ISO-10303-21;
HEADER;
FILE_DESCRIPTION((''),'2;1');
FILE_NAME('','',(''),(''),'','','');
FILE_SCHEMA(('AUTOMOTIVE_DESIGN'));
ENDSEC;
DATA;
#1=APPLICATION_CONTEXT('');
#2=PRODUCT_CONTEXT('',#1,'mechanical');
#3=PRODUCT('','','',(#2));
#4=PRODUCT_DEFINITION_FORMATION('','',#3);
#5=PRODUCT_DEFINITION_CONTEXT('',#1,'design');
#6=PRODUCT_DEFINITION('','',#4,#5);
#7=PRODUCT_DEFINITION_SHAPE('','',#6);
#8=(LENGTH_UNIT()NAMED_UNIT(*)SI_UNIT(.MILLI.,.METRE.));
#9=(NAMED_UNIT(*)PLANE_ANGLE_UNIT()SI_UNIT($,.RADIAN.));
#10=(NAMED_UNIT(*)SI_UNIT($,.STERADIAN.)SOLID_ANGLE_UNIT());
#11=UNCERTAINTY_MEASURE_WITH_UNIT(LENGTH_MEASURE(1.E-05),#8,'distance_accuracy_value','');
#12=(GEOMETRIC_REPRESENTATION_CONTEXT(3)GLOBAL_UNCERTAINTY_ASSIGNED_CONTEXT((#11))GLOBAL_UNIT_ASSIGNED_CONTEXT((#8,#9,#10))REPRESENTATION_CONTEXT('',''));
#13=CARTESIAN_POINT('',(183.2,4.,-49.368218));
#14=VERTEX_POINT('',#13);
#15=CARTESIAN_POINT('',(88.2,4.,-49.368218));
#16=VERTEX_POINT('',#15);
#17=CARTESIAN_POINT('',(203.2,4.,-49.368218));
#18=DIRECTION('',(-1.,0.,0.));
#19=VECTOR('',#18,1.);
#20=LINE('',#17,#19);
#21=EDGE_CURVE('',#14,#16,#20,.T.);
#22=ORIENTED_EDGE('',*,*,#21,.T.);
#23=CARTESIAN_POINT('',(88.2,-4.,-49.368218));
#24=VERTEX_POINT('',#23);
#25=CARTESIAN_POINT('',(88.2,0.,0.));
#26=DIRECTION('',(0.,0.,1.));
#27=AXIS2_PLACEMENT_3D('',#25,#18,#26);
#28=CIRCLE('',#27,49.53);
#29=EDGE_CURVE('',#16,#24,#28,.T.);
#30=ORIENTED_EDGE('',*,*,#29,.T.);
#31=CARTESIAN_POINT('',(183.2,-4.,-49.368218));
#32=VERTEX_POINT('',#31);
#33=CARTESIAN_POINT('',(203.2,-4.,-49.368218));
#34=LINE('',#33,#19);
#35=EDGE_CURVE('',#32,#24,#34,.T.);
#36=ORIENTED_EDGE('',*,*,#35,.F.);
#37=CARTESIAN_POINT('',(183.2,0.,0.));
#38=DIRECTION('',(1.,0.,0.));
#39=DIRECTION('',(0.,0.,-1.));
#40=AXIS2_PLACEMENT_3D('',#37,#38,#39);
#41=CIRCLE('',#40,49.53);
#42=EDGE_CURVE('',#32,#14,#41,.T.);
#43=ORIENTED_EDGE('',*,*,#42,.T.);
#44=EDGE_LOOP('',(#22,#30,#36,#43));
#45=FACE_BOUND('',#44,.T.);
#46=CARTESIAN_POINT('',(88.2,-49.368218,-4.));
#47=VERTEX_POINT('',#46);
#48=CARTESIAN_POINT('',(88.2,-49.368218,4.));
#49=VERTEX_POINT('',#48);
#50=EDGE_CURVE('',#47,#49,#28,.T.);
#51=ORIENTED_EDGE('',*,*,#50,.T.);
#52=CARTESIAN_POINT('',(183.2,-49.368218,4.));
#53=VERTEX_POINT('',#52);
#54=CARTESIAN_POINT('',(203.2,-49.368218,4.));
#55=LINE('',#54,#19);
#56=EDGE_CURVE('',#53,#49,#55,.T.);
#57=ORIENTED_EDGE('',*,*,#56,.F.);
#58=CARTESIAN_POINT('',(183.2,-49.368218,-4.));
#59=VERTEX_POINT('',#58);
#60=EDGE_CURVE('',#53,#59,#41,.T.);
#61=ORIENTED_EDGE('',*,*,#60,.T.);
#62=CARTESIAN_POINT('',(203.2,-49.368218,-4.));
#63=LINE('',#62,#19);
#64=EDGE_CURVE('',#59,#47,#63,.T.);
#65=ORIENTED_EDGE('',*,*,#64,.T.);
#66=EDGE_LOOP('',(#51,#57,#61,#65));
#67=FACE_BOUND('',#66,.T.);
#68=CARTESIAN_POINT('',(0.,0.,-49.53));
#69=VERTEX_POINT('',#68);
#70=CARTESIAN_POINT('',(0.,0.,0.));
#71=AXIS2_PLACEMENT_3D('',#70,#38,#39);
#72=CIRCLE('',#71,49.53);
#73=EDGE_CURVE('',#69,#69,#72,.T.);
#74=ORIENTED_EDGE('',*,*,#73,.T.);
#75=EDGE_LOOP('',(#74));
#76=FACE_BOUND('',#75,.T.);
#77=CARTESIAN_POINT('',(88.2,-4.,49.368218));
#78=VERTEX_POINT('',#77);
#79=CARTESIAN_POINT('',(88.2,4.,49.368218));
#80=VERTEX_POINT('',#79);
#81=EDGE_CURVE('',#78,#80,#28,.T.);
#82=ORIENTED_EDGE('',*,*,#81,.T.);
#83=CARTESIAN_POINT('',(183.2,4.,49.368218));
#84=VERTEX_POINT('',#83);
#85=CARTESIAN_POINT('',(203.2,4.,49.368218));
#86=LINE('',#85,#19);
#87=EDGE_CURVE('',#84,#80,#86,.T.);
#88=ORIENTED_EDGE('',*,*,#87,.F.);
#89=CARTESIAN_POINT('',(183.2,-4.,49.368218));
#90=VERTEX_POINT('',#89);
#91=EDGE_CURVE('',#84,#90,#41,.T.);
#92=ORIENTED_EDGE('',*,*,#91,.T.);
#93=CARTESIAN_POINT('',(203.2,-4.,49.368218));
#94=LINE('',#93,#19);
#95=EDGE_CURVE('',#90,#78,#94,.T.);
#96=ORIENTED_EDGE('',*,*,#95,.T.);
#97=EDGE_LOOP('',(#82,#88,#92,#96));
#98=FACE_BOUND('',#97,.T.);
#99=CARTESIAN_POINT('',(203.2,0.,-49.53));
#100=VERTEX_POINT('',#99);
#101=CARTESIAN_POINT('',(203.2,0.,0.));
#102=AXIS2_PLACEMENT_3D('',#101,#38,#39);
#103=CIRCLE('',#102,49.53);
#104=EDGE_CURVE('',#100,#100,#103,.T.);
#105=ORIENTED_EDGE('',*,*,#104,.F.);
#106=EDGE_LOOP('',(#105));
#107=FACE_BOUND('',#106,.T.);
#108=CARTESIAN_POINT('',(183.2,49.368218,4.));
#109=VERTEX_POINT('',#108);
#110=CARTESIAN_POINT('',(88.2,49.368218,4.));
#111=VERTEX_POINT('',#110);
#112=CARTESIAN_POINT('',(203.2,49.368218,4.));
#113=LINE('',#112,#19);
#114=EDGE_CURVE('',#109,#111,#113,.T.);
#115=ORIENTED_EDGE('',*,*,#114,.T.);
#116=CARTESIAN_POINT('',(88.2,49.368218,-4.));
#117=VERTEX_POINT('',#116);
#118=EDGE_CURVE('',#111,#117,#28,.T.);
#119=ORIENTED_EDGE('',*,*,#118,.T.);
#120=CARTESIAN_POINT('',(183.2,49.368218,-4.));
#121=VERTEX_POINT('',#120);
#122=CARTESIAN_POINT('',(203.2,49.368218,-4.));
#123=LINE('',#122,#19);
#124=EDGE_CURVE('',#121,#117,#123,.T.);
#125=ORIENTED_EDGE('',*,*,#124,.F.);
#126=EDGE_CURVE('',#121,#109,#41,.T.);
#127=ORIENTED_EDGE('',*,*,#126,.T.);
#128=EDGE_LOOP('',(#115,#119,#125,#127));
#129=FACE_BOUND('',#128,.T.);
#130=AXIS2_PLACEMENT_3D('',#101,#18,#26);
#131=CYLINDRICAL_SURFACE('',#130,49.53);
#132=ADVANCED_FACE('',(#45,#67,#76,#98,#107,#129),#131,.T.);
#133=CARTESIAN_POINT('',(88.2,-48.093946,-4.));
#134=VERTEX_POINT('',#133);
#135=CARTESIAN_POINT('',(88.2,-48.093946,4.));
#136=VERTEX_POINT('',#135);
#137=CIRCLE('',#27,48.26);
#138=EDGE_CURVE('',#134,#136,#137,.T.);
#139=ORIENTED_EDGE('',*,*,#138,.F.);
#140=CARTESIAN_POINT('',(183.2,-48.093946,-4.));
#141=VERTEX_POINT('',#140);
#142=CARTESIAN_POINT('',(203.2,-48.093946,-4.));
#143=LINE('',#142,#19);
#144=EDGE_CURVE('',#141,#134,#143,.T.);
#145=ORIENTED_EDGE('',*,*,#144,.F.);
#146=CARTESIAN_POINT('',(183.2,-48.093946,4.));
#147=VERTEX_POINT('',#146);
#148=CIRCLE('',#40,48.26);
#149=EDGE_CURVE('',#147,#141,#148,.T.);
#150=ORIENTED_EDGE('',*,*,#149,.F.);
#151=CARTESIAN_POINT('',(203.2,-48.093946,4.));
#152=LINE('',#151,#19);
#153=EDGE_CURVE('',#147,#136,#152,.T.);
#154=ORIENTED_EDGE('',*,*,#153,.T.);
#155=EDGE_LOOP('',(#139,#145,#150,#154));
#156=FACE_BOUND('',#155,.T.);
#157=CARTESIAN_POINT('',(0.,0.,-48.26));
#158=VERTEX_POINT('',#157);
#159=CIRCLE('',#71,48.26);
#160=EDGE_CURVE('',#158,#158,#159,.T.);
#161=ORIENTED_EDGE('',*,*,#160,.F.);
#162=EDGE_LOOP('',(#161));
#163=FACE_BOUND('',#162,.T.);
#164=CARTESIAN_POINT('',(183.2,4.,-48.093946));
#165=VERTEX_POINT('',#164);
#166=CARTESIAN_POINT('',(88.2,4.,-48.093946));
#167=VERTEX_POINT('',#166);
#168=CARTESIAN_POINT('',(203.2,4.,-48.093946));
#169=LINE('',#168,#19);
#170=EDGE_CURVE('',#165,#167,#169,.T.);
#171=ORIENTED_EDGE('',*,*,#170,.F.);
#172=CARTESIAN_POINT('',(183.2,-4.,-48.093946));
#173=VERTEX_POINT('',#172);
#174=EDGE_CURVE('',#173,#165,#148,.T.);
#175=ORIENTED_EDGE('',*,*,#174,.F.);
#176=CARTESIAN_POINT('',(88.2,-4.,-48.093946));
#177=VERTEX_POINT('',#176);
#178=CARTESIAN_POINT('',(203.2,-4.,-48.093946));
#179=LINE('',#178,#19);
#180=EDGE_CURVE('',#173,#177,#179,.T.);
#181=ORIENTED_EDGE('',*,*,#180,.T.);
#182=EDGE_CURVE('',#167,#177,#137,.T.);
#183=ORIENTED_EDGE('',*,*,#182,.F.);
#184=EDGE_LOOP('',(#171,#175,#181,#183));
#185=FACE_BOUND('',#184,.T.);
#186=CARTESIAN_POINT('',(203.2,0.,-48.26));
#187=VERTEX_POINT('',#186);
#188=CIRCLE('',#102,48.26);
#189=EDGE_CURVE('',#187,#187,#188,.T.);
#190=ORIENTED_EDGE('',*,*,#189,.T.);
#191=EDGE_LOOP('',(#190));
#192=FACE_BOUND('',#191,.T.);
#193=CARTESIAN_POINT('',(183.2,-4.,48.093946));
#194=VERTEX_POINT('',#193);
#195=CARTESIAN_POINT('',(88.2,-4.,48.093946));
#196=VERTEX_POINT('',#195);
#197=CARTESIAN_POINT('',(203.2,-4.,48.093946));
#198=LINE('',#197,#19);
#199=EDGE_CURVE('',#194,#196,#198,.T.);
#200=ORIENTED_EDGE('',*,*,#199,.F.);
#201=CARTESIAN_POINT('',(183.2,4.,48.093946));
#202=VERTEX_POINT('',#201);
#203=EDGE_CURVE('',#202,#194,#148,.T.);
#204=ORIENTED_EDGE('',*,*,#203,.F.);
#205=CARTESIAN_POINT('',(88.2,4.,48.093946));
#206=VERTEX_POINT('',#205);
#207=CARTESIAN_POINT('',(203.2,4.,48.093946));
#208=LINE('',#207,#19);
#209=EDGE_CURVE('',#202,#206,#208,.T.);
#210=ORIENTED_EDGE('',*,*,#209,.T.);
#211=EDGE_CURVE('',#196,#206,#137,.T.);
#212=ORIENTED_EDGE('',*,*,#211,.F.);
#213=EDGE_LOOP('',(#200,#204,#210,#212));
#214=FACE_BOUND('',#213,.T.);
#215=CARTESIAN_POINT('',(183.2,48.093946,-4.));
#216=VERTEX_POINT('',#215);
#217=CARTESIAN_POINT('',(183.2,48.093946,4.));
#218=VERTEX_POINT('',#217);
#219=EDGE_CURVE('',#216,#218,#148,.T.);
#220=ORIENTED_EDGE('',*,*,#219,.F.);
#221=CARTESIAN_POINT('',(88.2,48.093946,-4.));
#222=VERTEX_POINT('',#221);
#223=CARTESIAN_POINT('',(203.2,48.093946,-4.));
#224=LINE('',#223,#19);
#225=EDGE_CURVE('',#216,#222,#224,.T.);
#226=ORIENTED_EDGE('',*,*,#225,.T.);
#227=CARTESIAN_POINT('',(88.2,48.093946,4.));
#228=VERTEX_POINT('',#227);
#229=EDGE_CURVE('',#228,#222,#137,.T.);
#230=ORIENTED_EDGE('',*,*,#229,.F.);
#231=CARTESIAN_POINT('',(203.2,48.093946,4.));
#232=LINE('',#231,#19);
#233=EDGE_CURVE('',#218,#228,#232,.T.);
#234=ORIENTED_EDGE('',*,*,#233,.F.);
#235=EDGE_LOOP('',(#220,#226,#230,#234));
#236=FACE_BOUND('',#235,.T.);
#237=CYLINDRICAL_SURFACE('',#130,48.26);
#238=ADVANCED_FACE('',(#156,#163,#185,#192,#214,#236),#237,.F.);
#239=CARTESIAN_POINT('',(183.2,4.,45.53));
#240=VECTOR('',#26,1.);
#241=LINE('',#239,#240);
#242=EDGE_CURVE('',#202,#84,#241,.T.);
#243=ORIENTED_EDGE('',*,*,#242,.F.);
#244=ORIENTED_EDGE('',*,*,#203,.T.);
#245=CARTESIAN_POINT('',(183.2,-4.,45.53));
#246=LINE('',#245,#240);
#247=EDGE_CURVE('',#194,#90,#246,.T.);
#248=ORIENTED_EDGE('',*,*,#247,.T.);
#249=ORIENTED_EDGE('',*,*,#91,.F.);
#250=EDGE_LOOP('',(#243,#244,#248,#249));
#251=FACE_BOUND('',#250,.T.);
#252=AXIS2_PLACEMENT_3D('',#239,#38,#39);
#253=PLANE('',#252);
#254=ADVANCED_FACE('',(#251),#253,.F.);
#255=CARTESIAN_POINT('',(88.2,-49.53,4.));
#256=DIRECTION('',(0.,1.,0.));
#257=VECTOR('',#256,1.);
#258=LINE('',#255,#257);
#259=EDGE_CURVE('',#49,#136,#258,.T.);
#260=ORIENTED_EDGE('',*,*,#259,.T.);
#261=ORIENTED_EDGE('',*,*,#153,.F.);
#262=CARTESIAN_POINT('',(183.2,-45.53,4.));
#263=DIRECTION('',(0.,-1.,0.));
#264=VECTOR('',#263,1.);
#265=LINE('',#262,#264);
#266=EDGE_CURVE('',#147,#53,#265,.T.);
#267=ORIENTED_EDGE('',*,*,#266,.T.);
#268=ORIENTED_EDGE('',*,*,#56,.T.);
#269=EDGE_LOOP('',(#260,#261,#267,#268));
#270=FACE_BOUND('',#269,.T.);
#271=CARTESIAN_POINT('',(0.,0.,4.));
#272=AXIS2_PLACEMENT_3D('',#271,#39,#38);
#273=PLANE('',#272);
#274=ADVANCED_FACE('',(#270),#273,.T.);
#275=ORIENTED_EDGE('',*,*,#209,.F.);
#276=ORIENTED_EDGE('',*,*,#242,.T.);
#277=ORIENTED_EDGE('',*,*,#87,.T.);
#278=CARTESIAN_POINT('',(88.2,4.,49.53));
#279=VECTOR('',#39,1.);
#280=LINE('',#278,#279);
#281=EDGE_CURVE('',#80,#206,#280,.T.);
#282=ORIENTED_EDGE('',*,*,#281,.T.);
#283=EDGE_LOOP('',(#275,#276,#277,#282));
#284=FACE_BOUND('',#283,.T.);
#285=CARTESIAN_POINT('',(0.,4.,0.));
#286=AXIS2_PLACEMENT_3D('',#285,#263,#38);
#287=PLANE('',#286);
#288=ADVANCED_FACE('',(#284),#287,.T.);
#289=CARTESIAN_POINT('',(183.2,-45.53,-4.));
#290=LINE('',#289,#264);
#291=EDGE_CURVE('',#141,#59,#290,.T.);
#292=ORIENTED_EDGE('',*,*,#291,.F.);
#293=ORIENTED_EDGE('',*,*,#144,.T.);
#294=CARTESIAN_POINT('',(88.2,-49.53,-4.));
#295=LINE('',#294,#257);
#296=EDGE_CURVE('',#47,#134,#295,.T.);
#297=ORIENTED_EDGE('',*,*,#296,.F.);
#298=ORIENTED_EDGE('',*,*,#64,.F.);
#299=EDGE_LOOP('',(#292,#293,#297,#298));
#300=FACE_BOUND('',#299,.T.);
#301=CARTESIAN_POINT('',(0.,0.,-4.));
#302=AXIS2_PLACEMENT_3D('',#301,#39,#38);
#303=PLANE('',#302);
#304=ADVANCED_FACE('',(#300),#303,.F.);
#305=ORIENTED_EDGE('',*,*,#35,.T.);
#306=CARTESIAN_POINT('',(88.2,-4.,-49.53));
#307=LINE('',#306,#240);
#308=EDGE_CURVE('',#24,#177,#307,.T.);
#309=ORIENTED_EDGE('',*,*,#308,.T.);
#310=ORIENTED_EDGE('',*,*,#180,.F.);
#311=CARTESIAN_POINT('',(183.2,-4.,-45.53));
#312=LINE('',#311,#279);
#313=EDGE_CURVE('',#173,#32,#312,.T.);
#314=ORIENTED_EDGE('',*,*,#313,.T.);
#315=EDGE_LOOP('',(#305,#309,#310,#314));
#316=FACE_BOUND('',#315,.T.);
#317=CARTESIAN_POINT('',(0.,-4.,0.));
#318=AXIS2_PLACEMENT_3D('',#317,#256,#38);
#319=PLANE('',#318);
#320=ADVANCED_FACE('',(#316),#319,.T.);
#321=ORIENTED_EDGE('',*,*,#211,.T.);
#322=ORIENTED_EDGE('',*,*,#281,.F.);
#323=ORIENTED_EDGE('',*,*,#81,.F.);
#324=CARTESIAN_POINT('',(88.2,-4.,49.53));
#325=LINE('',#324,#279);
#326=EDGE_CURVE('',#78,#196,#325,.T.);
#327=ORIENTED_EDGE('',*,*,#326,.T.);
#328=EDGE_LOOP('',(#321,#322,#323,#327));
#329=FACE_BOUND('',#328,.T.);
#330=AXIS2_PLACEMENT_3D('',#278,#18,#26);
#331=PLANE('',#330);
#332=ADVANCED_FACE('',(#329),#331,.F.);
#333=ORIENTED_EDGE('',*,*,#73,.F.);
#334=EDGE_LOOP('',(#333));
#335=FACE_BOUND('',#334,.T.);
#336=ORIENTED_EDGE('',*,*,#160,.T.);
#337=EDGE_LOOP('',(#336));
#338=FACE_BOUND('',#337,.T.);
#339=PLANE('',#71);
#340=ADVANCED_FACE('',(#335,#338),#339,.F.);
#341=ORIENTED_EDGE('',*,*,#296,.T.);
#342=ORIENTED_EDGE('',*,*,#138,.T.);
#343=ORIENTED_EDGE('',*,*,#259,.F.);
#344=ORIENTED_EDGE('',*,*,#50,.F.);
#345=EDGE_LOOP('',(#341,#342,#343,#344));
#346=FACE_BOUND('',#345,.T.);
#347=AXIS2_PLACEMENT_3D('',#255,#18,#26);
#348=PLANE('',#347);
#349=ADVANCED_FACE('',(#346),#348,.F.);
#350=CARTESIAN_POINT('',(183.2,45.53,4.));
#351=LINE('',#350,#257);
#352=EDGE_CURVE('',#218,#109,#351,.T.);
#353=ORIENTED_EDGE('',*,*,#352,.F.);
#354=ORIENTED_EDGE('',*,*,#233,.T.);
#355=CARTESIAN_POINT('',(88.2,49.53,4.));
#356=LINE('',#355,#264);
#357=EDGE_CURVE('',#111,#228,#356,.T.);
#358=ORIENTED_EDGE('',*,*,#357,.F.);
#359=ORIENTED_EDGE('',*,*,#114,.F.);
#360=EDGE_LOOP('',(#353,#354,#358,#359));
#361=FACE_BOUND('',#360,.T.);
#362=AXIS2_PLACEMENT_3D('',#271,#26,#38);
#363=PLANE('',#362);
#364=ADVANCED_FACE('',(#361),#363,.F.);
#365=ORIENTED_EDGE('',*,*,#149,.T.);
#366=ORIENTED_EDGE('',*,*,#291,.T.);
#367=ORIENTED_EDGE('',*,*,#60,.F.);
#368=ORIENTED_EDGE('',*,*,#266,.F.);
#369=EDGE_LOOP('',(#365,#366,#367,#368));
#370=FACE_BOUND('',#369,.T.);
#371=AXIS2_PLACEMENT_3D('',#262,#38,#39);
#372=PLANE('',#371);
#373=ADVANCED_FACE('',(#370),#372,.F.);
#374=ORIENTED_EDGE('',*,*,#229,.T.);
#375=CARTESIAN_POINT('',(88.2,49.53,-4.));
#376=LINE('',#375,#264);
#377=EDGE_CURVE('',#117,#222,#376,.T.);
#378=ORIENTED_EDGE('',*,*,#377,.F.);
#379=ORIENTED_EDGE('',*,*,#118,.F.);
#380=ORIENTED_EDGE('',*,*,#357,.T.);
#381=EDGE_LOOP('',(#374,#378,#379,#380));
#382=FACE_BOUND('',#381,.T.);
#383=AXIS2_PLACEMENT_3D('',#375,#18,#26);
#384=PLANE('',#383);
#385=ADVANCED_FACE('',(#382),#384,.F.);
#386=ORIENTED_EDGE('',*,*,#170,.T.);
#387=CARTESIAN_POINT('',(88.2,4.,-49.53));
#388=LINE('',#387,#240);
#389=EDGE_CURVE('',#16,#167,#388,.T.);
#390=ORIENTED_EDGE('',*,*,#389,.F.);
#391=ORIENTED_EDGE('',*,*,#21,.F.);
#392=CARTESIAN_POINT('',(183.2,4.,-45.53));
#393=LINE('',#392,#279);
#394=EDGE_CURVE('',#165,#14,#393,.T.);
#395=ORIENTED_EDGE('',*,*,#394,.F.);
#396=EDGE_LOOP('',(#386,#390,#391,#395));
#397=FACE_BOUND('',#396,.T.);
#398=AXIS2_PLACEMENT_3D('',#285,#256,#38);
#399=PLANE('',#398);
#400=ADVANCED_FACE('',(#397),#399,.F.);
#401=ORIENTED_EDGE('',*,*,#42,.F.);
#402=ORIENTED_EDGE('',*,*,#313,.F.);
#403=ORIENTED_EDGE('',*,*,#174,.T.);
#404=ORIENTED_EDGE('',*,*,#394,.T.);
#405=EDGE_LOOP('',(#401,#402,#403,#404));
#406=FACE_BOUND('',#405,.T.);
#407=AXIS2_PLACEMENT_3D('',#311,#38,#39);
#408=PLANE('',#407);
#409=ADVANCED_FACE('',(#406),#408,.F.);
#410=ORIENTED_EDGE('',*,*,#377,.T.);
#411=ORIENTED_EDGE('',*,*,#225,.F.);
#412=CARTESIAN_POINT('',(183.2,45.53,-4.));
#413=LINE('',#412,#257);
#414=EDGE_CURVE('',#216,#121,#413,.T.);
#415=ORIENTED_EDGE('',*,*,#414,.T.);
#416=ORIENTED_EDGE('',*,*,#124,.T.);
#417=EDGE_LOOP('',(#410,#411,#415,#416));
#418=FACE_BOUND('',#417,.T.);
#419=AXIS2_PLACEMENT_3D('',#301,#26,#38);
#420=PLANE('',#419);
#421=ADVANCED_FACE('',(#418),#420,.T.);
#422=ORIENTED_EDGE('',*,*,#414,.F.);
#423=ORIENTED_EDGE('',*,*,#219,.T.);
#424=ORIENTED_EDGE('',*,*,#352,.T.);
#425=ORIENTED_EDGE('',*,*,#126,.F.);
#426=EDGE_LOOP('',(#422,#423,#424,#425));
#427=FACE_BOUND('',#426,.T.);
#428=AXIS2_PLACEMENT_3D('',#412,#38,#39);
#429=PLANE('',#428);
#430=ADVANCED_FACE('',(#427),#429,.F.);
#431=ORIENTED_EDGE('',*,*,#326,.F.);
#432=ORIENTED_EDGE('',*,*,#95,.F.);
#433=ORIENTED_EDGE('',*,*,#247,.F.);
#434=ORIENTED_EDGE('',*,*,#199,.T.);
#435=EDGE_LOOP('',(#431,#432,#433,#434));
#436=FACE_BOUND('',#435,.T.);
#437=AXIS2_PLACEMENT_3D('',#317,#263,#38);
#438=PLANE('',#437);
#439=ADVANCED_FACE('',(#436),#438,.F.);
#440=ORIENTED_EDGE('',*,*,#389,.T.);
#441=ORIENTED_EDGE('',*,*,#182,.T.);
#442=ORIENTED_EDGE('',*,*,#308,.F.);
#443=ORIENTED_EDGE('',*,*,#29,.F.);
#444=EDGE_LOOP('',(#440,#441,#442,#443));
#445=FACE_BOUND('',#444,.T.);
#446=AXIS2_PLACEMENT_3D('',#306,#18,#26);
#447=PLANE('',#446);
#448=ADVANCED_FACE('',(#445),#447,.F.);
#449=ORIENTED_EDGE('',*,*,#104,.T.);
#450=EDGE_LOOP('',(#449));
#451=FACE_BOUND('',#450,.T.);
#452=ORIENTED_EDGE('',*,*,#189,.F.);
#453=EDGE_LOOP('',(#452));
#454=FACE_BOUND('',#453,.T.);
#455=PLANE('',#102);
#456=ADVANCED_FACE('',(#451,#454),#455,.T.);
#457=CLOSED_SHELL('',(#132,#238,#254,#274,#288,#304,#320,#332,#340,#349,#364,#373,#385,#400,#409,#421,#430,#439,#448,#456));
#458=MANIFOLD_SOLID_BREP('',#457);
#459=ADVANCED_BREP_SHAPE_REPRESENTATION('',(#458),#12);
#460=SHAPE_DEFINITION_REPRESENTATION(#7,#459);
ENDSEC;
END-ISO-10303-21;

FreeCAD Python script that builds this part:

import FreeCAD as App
import Part
import Sketcher
from FreeCAD import Vector
Q = App.Units.Quantity


def add_polygon(sketch, points):
    """Adds a closed chain of lines whose ends are joined by coincident constraints."""
    first, n = sketch.GeometryCount, len(points)
    for a, b in zip(points, points[1:] + points[:1]):
        sketch.addGeometry(Part.LineSegment(App.Vector(*a, 0), App.Vector(*b, 0)), False)
    for i in range(n):
        sketch.addConstraint(Sketcher.Constraint("Coincident", first + i, 2, first + (i + 1) % n, 1))

doc = App.newDocument("Part")
params = doc.addObject("Spreadsheet::Sheet", "Params")
for row, (alias, value) in enumerate([
    ("sketch1_diameter", "3.9 in"),
    ("sketch1_diameter2", "3.8 in"),
    ("pad1_length", "8 in"),
    ("pocket1_length", "8 mm"),
], start=1):
    params.set(f"A{row}", alias)
    params.set(f"B{row}", "=" + value)
    params.setAlias(f"B{row}", alias)

body = doc.addObject("PartDesign::Body", "Body")

# Sketch on YZ plane
sketch1 = body.newObject("Sketcher::SketchObject", "Sketch")
sketch1.AttachmentSupport = (doc.getObject("YZ_Plane"), [""])
sketch1.MapMode = "FlatFace"
sketch1.addGeometry([
    Part.Circle(Vector(0, 0, 0), Vector(0, 0, 1), 49.53),
    Part.Circle(Vector(0, 0, 0), Vector(0, 0, 1), 48.26),
], False)
sketch1.addConstraint([
    Sketcher.Constraint("Coincident", 0, 3, -1, 1),
    Sketcher.Constraint("Coincident", 1, 3, -1, 1),
    Sketcher.Constraint("Diameter", 0, Q("3.9 in")),
    Sketcher.Constraint("Diameter", 1, Q("3.8 in")),
])
sketch1.setExpression("Constraints[2]", "Params.sketch1_diameter")
sketch1.setExpression("Constraints[3]", "Params.sketch1_diameter2")
pad1 = body.newObject("PartDesign::Pad", "Pad")
pad1.Profile = sketch1
pad1.setExpression("Length", "Params.pad1_length")

# Sketch on XY plane
sketch2 = body.newObject("Sketcher::SketchObject", "Sketch001")
sketch2.AttachmentSupport = (doc.getObject("XY_Plane"), [""])
sketch2.MapMode = "FlatFace"
add_polygon(sketch2, [(88.2, 49.53), (88.2, 45.53), (183.2, 45.53), (183.2, 49.53)])  # lines 0-3
sketch2.addConstraint([
    Sketcher.Constraint("Vertical", 0),
    Sketcher.Constraint("Horizontal", 1),
    Sketcher.Constraint("Vertical", 2),
    Sketcher.Constraint("Horizontal", 3),
    Sketcher.Constraint("DistanceY", -1, 1, 2, 2, Q("1.95 in")),
    Sketcher.Constraint("DistanceX", 1, 1, 1, 2, Q("95 mm")),
    Sketcher.Constraint("DistanceY", 0, 2, 0, 1, Q("4 mm")),
    Sketcher.Constraint("DistanceX", -1, 1, 0, 2, Q("88.2 mm")),
])
pocket1 = body.newObject("PartDesign::Pocket", "Pocket")
pocket1.Profile = sketch2
pocket1.setExpression("Length", "Params.pocket1_length")
pocket1.Midplane = True
doc.recompute()

polarpattern = body.newObject("PartDesign::PolarPattern", "PolarPattern")
polarpattern.Originals = [pocket1]
polarpattern.Axis = (doc.getObject("X_Axis"), [""])
polarpattern.Angle = 360
polarpattern.Occurrences = 4
body.Tip = polarpattern

doc.recompute()
